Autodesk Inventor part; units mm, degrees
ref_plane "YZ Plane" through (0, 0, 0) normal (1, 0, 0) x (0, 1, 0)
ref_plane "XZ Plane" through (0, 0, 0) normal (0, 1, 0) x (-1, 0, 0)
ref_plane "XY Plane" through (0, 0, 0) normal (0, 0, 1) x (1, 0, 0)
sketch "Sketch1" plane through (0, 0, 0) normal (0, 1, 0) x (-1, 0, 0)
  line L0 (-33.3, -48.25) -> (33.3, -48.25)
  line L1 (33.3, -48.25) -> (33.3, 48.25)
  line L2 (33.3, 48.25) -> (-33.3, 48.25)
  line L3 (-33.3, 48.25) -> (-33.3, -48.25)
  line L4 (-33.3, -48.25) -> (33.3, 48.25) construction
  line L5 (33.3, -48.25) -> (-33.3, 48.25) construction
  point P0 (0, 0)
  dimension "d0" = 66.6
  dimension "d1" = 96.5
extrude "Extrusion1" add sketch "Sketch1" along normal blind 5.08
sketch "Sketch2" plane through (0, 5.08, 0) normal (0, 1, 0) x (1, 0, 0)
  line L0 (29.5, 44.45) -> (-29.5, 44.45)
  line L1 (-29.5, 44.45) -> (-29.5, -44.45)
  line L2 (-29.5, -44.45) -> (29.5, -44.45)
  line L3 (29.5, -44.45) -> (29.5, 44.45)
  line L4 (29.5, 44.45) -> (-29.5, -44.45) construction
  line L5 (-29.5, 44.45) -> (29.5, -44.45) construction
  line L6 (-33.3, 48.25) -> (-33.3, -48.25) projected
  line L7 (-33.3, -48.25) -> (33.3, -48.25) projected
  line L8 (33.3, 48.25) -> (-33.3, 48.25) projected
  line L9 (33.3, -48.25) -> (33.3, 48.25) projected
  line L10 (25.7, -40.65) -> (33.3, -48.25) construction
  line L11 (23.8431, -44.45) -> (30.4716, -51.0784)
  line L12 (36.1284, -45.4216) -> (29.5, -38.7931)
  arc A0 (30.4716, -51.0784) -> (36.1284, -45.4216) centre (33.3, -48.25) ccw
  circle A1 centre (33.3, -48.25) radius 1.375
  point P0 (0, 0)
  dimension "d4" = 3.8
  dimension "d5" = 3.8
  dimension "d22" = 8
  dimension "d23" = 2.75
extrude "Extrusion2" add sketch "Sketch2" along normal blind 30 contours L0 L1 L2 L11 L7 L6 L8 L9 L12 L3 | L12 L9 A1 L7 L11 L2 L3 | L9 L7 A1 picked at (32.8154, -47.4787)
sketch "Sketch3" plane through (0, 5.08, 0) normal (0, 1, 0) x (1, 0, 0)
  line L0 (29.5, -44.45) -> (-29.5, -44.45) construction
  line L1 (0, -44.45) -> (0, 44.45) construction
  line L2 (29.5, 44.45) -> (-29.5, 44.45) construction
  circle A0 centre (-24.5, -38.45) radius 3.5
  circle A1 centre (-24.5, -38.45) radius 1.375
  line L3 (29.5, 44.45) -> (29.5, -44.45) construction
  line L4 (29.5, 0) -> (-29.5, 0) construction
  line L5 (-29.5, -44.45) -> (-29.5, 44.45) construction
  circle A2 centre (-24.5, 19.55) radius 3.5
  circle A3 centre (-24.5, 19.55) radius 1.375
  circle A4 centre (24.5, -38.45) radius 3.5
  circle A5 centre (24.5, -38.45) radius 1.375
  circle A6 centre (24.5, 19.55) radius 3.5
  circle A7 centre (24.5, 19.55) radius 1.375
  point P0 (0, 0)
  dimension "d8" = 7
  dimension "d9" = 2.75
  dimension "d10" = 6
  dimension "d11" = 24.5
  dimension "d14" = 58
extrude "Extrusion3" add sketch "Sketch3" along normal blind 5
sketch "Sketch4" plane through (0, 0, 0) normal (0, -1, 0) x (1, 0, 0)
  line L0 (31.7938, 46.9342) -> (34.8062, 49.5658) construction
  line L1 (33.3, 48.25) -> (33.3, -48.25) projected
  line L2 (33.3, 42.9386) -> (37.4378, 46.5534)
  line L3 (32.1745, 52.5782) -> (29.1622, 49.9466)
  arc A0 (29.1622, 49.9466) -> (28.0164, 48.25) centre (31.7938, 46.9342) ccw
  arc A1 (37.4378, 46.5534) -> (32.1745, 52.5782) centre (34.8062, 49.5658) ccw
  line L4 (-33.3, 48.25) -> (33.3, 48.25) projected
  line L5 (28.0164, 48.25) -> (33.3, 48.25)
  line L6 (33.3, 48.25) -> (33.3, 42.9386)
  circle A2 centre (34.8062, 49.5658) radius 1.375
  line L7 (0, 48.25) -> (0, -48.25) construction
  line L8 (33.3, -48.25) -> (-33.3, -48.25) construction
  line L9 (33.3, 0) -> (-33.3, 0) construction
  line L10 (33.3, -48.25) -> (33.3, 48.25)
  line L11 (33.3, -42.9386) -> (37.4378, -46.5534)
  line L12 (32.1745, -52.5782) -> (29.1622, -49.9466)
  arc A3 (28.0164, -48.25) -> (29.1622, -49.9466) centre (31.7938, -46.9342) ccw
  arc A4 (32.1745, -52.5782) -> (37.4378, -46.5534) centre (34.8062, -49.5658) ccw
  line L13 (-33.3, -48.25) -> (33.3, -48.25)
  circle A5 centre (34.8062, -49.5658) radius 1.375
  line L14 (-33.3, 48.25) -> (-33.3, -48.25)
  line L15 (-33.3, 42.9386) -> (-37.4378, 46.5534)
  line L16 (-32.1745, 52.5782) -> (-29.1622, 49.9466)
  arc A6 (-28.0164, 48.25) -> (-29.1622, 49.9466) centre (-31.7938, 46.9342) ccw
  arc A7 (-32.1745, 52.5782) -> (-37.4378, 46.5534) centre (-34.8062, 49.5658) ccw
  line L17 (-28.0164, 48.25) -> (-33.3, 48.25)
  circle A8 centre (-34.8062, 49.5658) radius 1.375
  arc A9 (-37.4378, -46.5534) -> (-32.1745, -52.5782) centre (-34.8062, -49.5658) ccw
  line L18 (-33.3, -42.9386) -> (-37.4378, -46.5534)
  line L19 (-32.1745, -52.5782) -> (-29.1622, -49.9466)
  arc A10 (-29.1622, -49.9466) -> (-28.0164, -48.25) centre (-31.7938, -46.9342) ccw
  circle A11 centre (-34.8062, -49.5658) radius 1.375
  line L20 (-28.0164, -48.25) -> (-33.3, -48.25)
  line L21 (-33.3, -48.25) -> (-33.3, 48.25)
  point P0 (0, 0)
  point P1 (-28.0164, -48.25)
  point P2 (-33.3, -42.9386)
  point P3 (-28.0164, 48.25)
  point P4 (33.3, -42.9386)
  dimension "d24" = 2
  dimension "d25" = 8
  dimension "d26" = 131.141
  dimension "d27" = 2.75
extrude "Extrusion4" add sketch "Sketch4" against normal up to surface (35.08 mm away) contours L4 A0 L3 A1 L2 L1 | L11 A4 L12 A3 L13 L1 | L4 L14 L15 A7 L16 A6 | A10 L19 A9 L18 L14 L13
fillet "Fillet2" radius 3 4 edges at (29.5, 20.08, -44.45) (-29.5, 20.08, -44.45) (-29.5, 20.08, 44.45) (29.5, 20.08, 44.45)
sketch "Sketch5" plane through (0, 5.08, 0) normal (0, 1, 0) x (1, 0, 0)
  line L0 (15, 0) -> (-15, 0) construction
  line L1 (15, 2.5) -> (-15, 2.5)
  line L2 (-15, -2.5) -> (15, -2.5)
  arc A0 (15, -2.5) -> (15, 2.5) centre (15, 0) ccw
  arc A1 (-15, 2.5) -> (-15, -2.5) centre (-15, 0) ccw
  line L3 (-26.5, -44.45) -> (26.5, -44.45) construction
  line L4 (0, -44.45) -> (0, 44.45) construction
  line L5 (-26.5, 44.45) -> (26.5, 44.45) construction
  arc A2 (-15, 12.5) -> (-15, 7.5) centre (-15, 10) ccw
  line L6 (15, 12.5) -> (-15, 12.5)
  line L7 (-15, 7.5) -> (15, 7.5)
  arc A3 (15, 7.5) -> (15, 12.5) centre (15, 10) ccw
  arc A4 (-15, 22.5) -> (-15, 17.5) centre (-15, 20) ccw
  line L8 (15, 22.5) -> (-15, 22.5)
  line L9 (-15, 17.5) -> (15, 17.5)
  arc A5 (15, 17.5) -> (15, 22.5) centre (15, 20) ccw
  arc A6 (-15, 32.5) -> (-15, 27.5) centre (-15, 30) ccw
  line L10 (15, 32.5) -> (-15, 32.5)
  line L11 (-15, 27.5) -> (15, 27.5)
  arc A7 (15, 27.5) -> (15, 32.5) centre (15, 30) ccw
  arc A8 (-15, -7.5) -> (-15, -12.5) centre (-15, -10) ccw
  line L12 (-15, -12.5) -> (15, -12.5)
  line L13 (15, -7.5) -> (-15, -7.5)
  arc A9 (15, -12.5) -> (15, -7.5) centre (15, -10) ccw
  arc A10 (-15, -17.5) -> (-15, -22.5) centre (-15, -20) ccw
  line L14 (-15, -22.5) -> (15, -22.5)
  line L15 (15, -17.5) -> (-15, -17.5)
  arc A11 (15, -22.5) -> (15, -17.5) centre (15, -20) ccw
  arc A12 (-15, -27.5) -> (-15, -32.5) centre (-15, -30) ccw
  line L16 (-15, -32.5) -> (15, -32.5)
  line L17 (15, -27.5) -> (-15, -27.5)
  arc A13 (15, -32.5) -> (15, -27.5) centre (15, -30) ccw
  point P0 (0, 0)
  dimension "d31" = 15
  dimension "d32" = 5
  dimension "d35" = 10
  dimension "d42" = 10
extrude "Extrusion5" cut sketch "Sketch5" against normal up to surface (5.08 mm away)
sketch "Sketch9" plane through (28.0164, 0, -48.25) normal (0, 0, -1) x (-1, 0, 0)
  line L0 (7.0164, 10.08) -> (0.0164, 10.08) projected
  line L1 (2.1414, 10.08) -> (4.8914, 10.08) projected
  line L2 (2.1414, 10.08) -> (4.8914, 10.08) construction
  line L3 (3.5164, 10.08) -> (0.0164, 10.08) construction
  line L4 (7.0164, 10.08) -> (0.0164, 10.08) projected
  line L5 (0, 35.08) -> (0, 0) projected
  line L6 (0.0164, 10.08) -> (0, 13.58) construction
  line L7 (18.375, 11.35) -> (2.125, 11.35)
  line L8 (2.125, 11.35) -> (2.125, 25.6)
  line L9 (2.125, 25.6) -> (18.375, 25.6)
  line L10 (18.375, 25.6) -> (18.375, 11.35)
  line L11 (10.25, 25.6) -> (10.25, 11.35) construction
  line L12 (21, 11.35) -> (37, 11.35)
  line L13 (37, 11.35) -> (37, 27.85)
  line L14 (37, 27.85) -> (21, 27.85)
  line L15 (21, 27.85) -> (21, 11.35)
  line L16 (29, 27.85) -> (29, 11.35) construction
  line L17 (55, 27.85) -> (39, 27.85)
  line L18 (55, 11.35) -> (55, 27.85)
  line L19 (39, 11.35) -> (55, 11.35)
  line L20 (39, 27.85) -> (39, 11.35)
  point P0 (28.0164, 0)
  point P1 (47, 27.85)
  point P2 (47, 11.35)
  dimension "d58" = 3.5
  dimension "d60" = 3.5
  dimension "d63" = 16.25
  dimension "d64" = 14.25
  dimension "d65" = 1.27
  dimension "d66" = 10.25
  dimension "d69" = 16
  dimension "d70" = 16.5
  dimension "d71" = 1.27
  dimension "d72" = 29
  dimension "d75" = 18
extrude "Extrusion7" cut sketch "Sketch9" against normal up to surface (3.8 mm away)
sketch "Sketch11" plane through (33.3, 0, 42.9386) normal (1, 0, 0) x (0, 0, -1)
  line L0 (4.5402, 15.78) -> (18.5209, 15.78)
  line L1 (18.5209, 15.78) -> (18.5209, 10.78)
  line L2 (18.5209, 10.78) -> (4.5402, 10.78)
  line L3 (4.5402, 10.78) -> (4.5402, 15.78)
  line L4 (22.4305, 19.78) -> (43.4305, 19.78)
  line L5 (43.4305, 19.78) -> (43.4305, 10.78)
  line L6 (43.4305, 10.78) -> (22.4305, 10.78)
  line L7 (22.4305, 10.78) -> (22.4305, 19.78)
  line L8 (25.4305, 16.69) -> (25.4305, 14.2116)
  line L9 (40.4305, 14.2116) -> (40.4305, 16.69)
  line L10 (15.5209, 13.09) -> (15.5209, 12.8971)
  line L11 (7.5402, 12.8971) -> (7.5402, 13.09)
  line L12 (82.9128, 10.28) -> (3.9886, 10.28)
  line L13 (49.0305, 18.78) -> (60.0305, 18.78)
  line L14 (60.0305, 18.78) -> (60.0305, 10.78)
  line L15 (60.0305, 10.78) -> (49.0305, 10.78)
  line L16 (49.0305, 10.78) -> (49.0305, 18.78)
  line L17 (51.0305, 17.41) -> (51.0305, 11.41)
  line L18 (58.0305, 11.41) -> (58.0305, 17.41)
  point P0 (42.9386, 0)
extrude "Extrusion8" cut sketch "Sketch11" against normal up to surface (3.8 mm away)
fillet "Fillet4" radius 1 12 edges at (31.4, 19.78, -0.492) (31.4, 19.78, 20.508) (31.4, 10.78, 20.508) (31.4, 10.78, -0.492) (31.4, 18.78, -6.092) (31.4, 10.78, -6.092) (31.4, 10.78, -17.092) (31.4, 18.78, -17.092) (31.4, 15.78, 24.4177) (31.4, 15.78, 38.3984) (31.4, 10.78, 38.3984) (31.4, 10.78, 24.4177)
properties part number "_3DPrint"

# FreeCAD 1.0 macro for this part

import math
import FreeCAD as App
import Part
import Sketcher

V = App.Vector
Q = App.Units.Quantity


def edges_at(feature, points):
    """Names of the edges that pass closest to the given points."""
    edges = feature.Shape.Edges
    near = lambda p: min(range(len(edges)), key=lambda i: edges[i].distToShape(Part.Vertex(*p))[0])
    return sorted({f"Edge{near(p) + 1}" for p in points})

doc = App.newDocument("Part")
params = doc.addObject("Spreadsheet::Sheet", "Params")
for row, (alias, value) in enumerate([
    ("sketch1_width", "66.6 mm"),
    ("sketch1_height", "96.5 mm"),
    ("pad1_length", "5.08 mm"),
    ("sketch2_width", "59 mm"),
    ("sketch2_height", "96.5 mm"),
    ("pad2_length", "30 mm"),
    ("sketch3_diameter", "7 mm"),
    ("sketch3_diameter2", "2.75 mm"),
    ("pad3_length", "5 mm"),
    ("sketch4_radius", "4 mm"),
    ("sketch4_diameter", "2.75 mm"),
    ("sketch4_length", "4 mm"),
    ("pad4_length", "35.08 mm"),
    ("fillet_radius", "3 mm"),
    ("sketch5_radius", "2.5 mm"),
    ("pocket1_length", "5.08 mm"),
    ("sketch6_width", "16 mm"),
    ("sketch6_height", "16.5 mm"),
    ("sketch6_width2", "16.25 mm"),
    ("sketch6_height2", "14.25 mm"),
    ("pocket2_length", "3.8 mm"),
    ("sketch7_width", "5 mm"),
    ("sketch7_width2", "9 mm"),
    ("sketch7_width3", "8 mm"),
    ("sketch7_height", "21 mm"),
    ("sketch7_height2", "11 mm"),
    ("pocket3_length", "3.8 mm"),
    ("fillet2_radius", "1 mm"),
], start=1):
    params.set(f"A{row}", alias)
    params.set(f"B{row}", "=" + value)
    params.setAlias(f"B{row}", alias)

body = doc.addObject("PartDesign::Body", "Body")

# Sketch on XZ plane
sketch1 = body.newObject("Sketcher::SketchObject", "Sketch")
sketch1.AttachmentSupport = (doc.getObject("XZ_Plane"), [""])
sketch1.MapMode = "FlatFace"
sketch1.addGeometry([
    Part.LineSegment(V(33.3, 48.25, 0), V(33.3, -48.25, 0)),
    Part.LineSegment(V(33.3, -48.25, 0), V(-33.3, -48.25, 0)),
    Part.LineSegment(V(-33.3, -48.25, 0), V(-33.3, 48.25, 0)),
    Part.LineSegment(V(-33.3, 48.25, 0), V(33.3, 48.25, 0)),
], False)
sketch1.addConstraint([
    Sketcher.Constraint("Coincident", 0, 2, 1, 1),
    Sketcher.Constraint("Coincident", 1, 2, 2, 1),
    Sketcher.Constraint("Coincident", 2, 2, 3, 1),
    Sketcher.Constraint("Coincident", 3, 2, 0, 1),
    Sketcher.Constraint("Vertical", 0),
    Sketcher.Constraint("Horizontal", 1),
    Sketcher.Constraint("Vertical", 2),
    Sketcher.Constraint("Horizontal", 3),
    Sketcher.Constraint("Symmetric", 0, 2, 2, 2, -1, 1),
    Sketcher.Constraint("DistanceX", 1, 2, 1, 1, 66.6),
    Sketcher.Constraint("DistanceY", 0, 2, 0, 1, 96.5),
])
sketch1.setExpression("Constraints[9]", "Params.sketch1_width")
sketch1.setExpression("Constraints[10]", "Params.sketch1_height")
pad1 = body.newObject("PartDesign::Pad", "Pad")
pad1.Profile = sketch1
pad1.setExpression("Length", "Params.pad1_length")
pad1.Reversed = True

# Sketch on XZ plane
sketch2 = body.newObject("Sketcher::SketchObject", "Sketch001")
sketch2.AttachmentSupport = (doc.getObject("XZ_Plane"), [""])
sketch2.MapMode = "FlatFace"
sketch2.AttachmentOffset = App.Placement(V(0, 0, -5.08), App.Rotation())
sketch2.addGeometry([
    Part.LineSegment(V(-33.3, 48.25, 0), V(33.3, 48.25, 0)),  # 0
    Part.LineSegment(V(33.3, 48.25, 0), V(33.3, -48.25, 0)),  # 1
    Part.LineSegment(V(33.3, -48.25, 0), V(-33.3, -48.25, 0)),  # 2
    Part.LineSegment(V(-33.3, -48.25, 0), V(-33.3, 48.25, 0)),  # 3
    Part.LineSegment(V(-29.5, -44.45, 0), V(29.5, -44.45, 0)),  # 4
    Part.LineSegment(V(29.5, -44.45, 0), V(29.5, 44.45, 0)),  # 5
    Part.LineSegment(V(29.5, 44.45, 0), V(-29.5, 44.45, 0)),  # 6
    Part.LineSegment(V(-29.5, 44.45, 0), V(-29.5, -44.45, 0)),  # 7
], False)
sketch2.addConstraint([
    Sketcher.Constraint("Coincident", 0, 2, 1, 1),
    Sketcher.Constraint("Coincident", 1, 2, 2, 1),
    Sketcher.Constraint("Coincident", 2, 2, 3, 1),
    Sketcher.Constraint("Coincident", 3, 2, 0, 1),
    Sketcher.Constraint("Coincident", 4, 2, 5, 1),
    Sketcher.Constraint("Coincident", 5, 2, 6, 1),
    Sketcher.Constraint("Coincident", 6, 2, 7, 1),
    Sketcher.Constraint("Coincident", 7, 2, 4, 1),
    Sketcher.Constraint("Horizontal", 0),
    Sketcher.Constraint("Vertical", 1),
    Sketcher.Constraint("Horizontal", 2),
    Sketcher.Constraint("Vertical", 3),
    Sketcher.Constraint("Horizontal", 4),
    Sketcher.Constraint("Vertical", 5),
    Sketcher.Constraint("Horizontal", 6),
    Sketcher.Constraint("Vertical", 7),
    Sketcher.Constraint("Symmetric", 0, 2, 2, 2, -1, 1),
    Sketcher.Constraint("Symmetric", 4, 2, 6, 2, -1, 1),
    Sketcher.Constraint("DistanceX", 4, 2, 1, 2, 3.8),
    Sketcher.Constraint("DistanceY", 1, 2, 4, 2, 3.8),
    Sketcher.Constraint("DistanceX", 4, 1, 4, 2, 59.0),
    Sketcher.Constraint("DistanceY", 1, 2, 1, 1, 96.5),
])
sketch2.setExpression("Constraints[20]", "Params.sketch2_width")
sketch2.setExpression("Constraints[21]", "Params.sketch2_height")
pad2 = body.newObject("PartDesign::Pad", "Pad001")
pad2.Profile = sketch2
pad2.setExpression("Length", "Params.pad2_length")
pad2.Reversed = True

# Sketch on XZ plane
sketch3 = body.newObject("Sketcher::SketchObject", "Sketch002")
sketch3.AttachmentSupport = (doc.getObject("XZ_Plane"), [""])
sketch3.MapMode = "FlatFace"
sketch3.AttachmentOffset = App.Placement(V(0, 0, -5.08), App.Rotation())
sketch3.addGeometry([
    Part.Circle(V(-24.5, 38.45, 0), V(0, 0, 1), 3.5),  # 0
    Part.Circle(V(-24.5, 38.45, 0), V(0, 0, 1), 1.375),  # 1
    Part.Circle(V(-24.5, -19.55, 0), V(0, 0, 1), 3.5),  # 2
    Part.Circle(V(-24.5, -19.55, 0), V(0, 0, 1), 1.375),  # 3
    Part.Circle(V(24.5, 38.45, 0), V(0, 0, 1), 3.5),  # 4
    Part.Circle(V(24.5, 38.45, 0), V(0, 0, 1), 1.375),  # 5
    Part.Circle(V(24.5, -19.55, 0), V(0, 0, 1), 3.5),  # 6
    Part.Circle(V(24.5, -19.55, 0), V(0, 0, 1), 1.375),  # 7
], False)
sketch3.addConstraint([
    Sketcher.Constraint("Coincident", 1, 3, 0, 3),
    Sketcher.Constraint("Coincident", 3, 3, 2, 3),
    Sketcher.Constraint("Coincident", 5, 3, 4, 3),
    Sketcher.Constraint("Coincident", 7, 3, 6, 3),
    Sketcher.Constraint("Equal", 0, 2),
    Sketcher.Constraint("Equal", 1, 3),
    Sketcher.Constraint("Equal", 2, 4),
    Sketcher.Constraint("Equal", 3, 5),
    Sketcher.Constraint("Equal", 4, 6),
    Sketcher.Constraint("Equal", 5, 7),
    Sketcher.Constraint("Symmetric", 0, 3, 4, 3, -2),
    Sketcher.Constraint("Symmetric", 2, 3, 6, 3, -2),
    Sketcher.Constraint("Vertical", 1, 3, 2, 3),
    Sketcher.Constraint("Diameter", 0, 7.0),
    Sketcher.Constraint("Diameter", 1, 2.75),
    Sketcher.Constraint("DistanceY", 2, 3, 0, 3, 58.0),
    Sketcher.Constraint("DistanceX", 0, 3, -1, 1, 24.5),
    Sketcher.Constraint("DistanceY", -1, 1, 0, 3, 38.45),
])
sketch3.setExpression("Constraints[13]", "Params.sketch3_diameter")
sketch3.setExpression("Constraints[14]", "Params.sketch3_diameter2")
pad3 = body.newObject("PartDesign::Pad", "Pad002")
pad3.Profile = sketch3
pad3.setExpression("Length", "Params.pad3_length")
pad3.Reversed = True

# Sketch on XZ plane
sketch4 = body.newObject("Sketcher::SketchObject", "Sketch003")
sketch4.AttachmentSupport = (doc.getObject("XZ_Plane"), [""])
sketch4.MapMode = "FlatFace"
sketch4.addGeometry([
    Part.LineSegment(V(28.0164, 48.25, 0), V(33.3, 48.25, 0)),  # 0
    Part.LineSegment(V(33.3, 48.25, 0), V(33.3, 42.9386, 0)),  # 1
    Part.LineSegment(V(33.3, 42.9386, 0), V(37.4378, 46.5534, 0)),  # 2
    Part.ArcOfCircle(Part.Circle(V(34.8062, 49.5658, 0), V(0, 0, 1), 3.999984), math.radians(-48.859889), math.radians(131.141189)),  # 3
    Part.LineSegment(V(32.1745, 52.5782, 0), V(29.1622, 49.9466, 0)),  # 4
    Part.ArcOfCircle(Part.Circle(V(31.7938, 46.9342, 0), V(0, 0, 1), 3.999984), math.radians(131.140111), math.radians(160.794993)),  # 5
    Part.Circle(V(34.8062, 49.5658, 0), V(0, 0, 1), 1.375),  # 6
    Part.LineSegment(V(37.4378, -46.5534, 0), V(33.3, -42.9386, 0)),  # 7
    Part.LineSegment(V(33.3, -42.9386, 0), V(33.3, -48.25, 0)),  # 8
    Part.LineSegment(V(33.3, -48.25, 0), V(28.0164, -48.25, 0)),  # 9
    Part.ArcOfCircle(Part.Circle(V(31.7938, -46.9342, 0), V(0, 0, 1), 4.00001), math.radians(-160.794993), math.radians(-131.140111)),  # 10
    Part.LineSegment(V(29.1622, -49.9466, 0), V(32.1745, -52.5782, 0)),  # 11
    Part.ArcOfCircle(Part.Circle(V(34.8062, -49.5658, 0), V(0, 0, 1), 4.00005), math.radians(-131.141189), math.radians(48.859889)),  # 12
    Part.Circle(V(34.8062, -49.5658, 0), V(0, 0, 1), 1.375),  # 13
    Part.LineSegment(V(-33.3, 48.25, 0), V(-28.0164, 48.25, 0)),  # 14
    Part.ArcOfCircle(Part.Circle(V(-31.7938, 46.9342, 0), V(0, 0, 1), 4.00001), math.radians(19.205007), math.radians(48.859889)),  # 15
    Part.LineSegment(V(-29.1622, 49.9466, 0), V(-32.1745, 52.5782, 0)),  # 16
    Part.ArcOfCircle(Part.Circle(V(-34.8062, 49.5658, 0), V(0, 0, 1), 4.00005), math.radians(48.858811), math.radians(228.859889)),  # 17
    Part.LineSegment(V(-37.4378, 46.5534, 0), V(-33.3, 42.9386, 0)),  # 18
    Part.LineSegment(V(-33.3, 42.9386, 0), V(-33.3, 48.25, 0)),  # 19
    Part.Circle(V(-34.8062, 49.5658, 0), V(0, 0, 1), 1.375),  # 20
    Part.ArcOfCircle(Part.Circle(V(-31.7938, -46.9342, 0), V(0, 0, 1), 3.999984), math.radians(-48.859889), math.radians(-19.205007)),  # 21
    Part.LineSegment(V(-28.0164, -48.25, 0), V(-33.3, -48.25, 0)),  # 22
    Part.LineSegment(V(-33.3, -48.25, 0), V(-33.3, -42.9386, 0)),  # 23
    Part.LineSegment(V(-33.3, -42.9386, 0), V(-37.4378, -46.5534, 0)),  # 24
    Part.ArcOfCircle(Part.Circle(V(-34.8062, -49.5658, 0), V(0, 0, 1), 3.999984), math.radians(131.140111), math.radians(311.141189)),  # 25
    Part.LineSegment(V(-32.1745, -52.5782, 0), V(-29.1622, -49.9466, 0)),  # 26
    Part.Circle(V(-34.8062, -49.5658, 0), V(0, 0, 1), 1.375),  # 27
], False)
sketch4.addConstraint([
    Sketcher.Constraint("Coincident", 0, 2, 1, 1),
    Sketcher.Constraint("Coincident", 1, 2, 2, 1),
    Sketcher.Constraint("Tangent", 2, 2, 3, 1),
    Sketcher.Constraint("Tangent", 3, 2, 4, 1),
    Sketcher.Constraint("Tangent", 4, 2, 5, 1),
    Sketcher.Constraint("Coincident", 5, 2, 0, 1),
    Sketcher.Constraint("Coincident", 7, 2, 8, 1),
    Sketcher.Constraint("Coincident", 8, 2, 9, 1),
    Sketcher.Constraint("Coincident", 9, 2, 10, 1),
    Sketcher.Constraint("Tangent", 10, 2, 11, 1),
    Sketcher.Constraint("Tangent", 11, 2, 12, 1),
    Sketcher.Constraint("Tangent", 12, 2, 7, 1),
    Sketcher.Constraint("Coincident", 14, 2, 15, 1),
    Sketcher.Constraint("Tangent", 15, 2, 16, 1),
    Sketcher.Constraint("Tangent", 16, 2, 17, 1),
    Sketcher.Constraint("Tangent", 17, 2, 18, 1),
    Sketcher.Constraint("Coincident", 18, 2, 19, 1),
    Sketcher.Constraint("Coincident", 19, 2, 14, 1),
    Sketcher.Constraint("Coincident", 21, 2, 22, 1),
    Sketcher.Constraint("Coincident", 22, 2, 23, 1),
    Sketcher.Constraint("Coincident", 23, 2, 24, 1),
    Sketcher.Constraint("Tangent", 24, 2, 25, 1),
    Sketcher.Constraint("Tangent", 25, 2, 26, 1),
    Sketcher.Constraint("Tangent", 26, 2, 21, 1),
    Sketcher.Constraint("Horizontal", 0),
    Sketcher.Constraint("Vertical", 1),
    Sketcher.Constraint("Vertical", 8),
    Sketcher.Constraint("Horizontal", 9),
    Sketcher.Constraint("Horizontal", 14),
    Sketcher.Constraint("Vertical", 19),
    Sketcher.Constraint("Horizontal", 22),
    Sketcher.Constraint("Vertical", 23),
    Sketcher.Constraint("Coincident", 6, 3, 3, 3),
    Sketcher.Constraint("Coincident", 13, 3, 12, 3),
    Sketcher.Constraint("Coincident", 20, 3, 17, 3),
    Sketcher.Constraint("Coincident", 27, 3, 25, 3),
    Sketcher.Constraint("Equal", 3, 5),
    Sketcher.Constraint("Equal", 5, 10),
    Sketcher.Constraint("Equal", 10, 12),
    Sketcher.Constraint("Equal", 6, 13),
    Sketcher.Constraint("Equal", 12, 15),
    Sketcher.Constraint("Equal", 15, 17),
    Sketcher.Constraint("Equal", 13, 20),
    Sketcher.Constraint("Equal", 17, 21),
    Sketcher.Constraint("Equal", 21, 25),
    Sketcher.Constraint("Equal", 20, 27),
    Sketcher.Constraint("Symmetric", 10, 3, 15, 3, -1, 1),
    Sketcher.Constraint("Symmetric", 12, 3, 17, 3, -1, 1),
    Sketcher.Constraint("Symmetric", 5, 3, 21, 3, -1, 1),
    Sketcher.Constraint("Symmetric", 3, 3, 25, 3, -1, 1),
    Sketcher.Constraint("Symmetric", 7, 2, 18, 2, -1, 1),
    Sketcher.Constraint("Symmetric", 0, 2, 22, 2, -1, 1),
    Sketcher.Constraint("Symmetric", 5, 3, 15, 3, -2),
    Sketcher.Constraint("Symmetric", 3, 3, 17, 3, -2),
    Sketcher.Constraint("Symmetric", 1, 2, 18, 2, -2),
    Sketcher.Constraint("Parallel", 2, 4),
    Sketcher.Constraint("Parallel", 4, 24),
    Sketcher.Constraint("Horizontal", 5, 2, 14, 2),
    Sketcher.Constraint("Horizontal", 9, 2, 21, 2),
    Sketcher.Constraint("Radius", 3, 4.0),
    Sketcher.Constraint("Diameter", 6, 2.75),
    Sketcher.Constraint("Distance", 4, 4.0),
    Sketcher.Constraint("DistanceX", -1, 1, 0, 2, 33.3),
    Sketcher.Constraint("Angle", 2, Q("41.1406 deg")),
    Sketcher.Constraint("DistanceY", 10, 3, 3, 3, 96.5),
    Sketcher.Constraint("DistanceX", 15, 3, 3, 3, 66.6),
    Sketcher.Constraint("DistanceY", -1, 1, 0, 2, 48.25),
])
sketch4.setExpression("Constraints[59]", "Params.sketch4_radius")
sketch4.setExpression("Constraints[60]", "Params.sketch4_diameter")
sketch4.setExpression("Constraints[61]", "Params.sketch4_length")
pad4 = body.newObject("PartDesign::Pad", "Pad003")
pad4.Profile = sketch4
pad4.setExpression("Length", "Params.pad4_length")
pad4.Reversed = True
doc.recompute()

fillet = body.newObject("PartDesign::Fillet", "Fillet")
fillet.Base = (pad4, edges_at(pad4, [
    (29.5, 20.08, -44.45),
    (-29.5, 20.08, -44.45),
    (-29.5, 20.08, 44.45),
    (29.5, 20.08, 44.45),
]))
fillet.setExpression("Radius", "Params.fillet_radius")

# Sketch on XZ plane
sketch5 = body.newObject("Sketcher::SketchObject", "Sketch004")
sketch5.AttachmentSupport = (doc.getObject("XZ_Plane"), [""])
sketch5.MapMode = "FlatFace"
sketch5.AttachmentOffset = App.Placement(V(0, 0, -5.08), App.Rotation())
sketch5.addGeometry([
    Part.ArcOfCircle(Part.Circle(V(15, 0, 0), V(0, 0, 1), 2.5), math.radians(-90), math.radians(90)),  # 0
    Part.LineSegment(V(15, -2.5, 0), V(-15, -2.5, 0)),  # 1
    Part.ArcOfCircle(Part.Circle(V(-15, 0, 0), V(0, 0, 1), 2.5), math.radians(90), math.radians(270)),  # 2
    Part.LineSegment(V(-15, 2.5, 0), V(15, 2.5, 0)),  # 3
    Part.LineSegment(V(15, -12.5, 0), V(-15, -12.5, 0)),  # 4
    Part.ArcOfCircle(Part.Circle(V(-15, -10, 0), V(0, 0, 1), 2.5), math.radians(90), math.radians(270)),  # 5
    Part.LineSegment(V(-15, -7.5, 0), V(15, -7.5, 0)),  # 6
    Part.ArcOfCircle(Part.Circle(V(15, -10, 0), V(0, 0, 1), 2.5), math.radians(-90), math.radians(90)),  # 7
    Part.LineSegment(V(15, -22.5, 0), V(-15, -22.5, 0)),  # 8
    Part.ArcOfCircle(Part.Circle(V(-15, -20, 0), V(0, 0, 1), 2.5), math.radians(90), math.radians(270)),  # 9
    Part.LineSegment(V(-15, -17.5, 0), V(15, -17.5, 0)),  # 10
    Part.ArcOfCircle(Part.Circle(V(15, -20, 0), V(0, 0, 1), 2.5), math.radians(-90), math.radians(90)),  # 11
    Part.LineSegment(V(15, -32.5, 0), V(-15, -32.5, 0)),  # 12
    Part.ArcOfCircle(Part.Circle(V(-15, -30, 0), V(0, 0, 1), 2.5), math.radians(90), math.radians(270)),  # 13
    Part.LineSegment(V(-15, -27.5, 0), V(15, -27.5, 0)),  # 14
    Part.ArcOfCircle(Part.Circle(V(15, -30, 0), V(0, 0, 1), 2.5), math.radians(-90), math.radians(90)),  # 15
    Part.LineSegment(V(15, 7.5, 0), V(-15, 7.5, 0)),  # 16
    Part.ArcOfCircle(Part.Circle(V(-15, 10, 0), V(0, 0, 1), 2.5), math.radians(90), math.radians(270)),  # 17
    Part.LineSegment(V(-15, 12.5, 0), V(15, 12.5, 0)),  # 18
    Part.ArcOfCircle(Part.Circle(V(15, 10, 0), V(0, 0, 1), 2.5), math.radians(-90), math.radians(90)),  # 19
    Part.LineSegment(V(15, 17.5, 0), V(-15, 17.5, 0)),  # 20
    Part.ArcOfCircle(Part.Circle(V(-15, 20, 0), V(0, 0, 1), 2.5), math.radians(90), math.radians(270)),  # 21
    Part.LineSegment(V(-15, 22.5, 0), V(15, 22.5, 0)),  # 22
    Part.ArcOfCircle(Part.Circle(V(15, 20, 0), V(0, 0, 1), 2.5), math.radians(-90), math.radians(90)),  # 23
    Part.LineSegment(V(15, 27.5, 0), V(-15, 27.5, 0)),  # 24
    Part.ArcOfCircle(Part.Circle(V(-15, 30, 0), V(0, 0, 1), 2.5), math.radians(90), math.radians(270)),  # 25
    Part.LineSegment(V(-15, 32.5, 0), V(15, 32.5, 0)),  # 26
    Part.ArcOfCircle(Part.Circle(V(15, 30, 0), V(0, 0, 1), 2.5), math.radians(-90), math.radians(90)),  # 27
], False)
sketch5.addConstraint([
    Sketcher.Constraint("Tangent", 0, 1, 1, 1),
    Sketcher.Constraint("Tangent", 1, 2, 2, 2),
    Sketcher.Constraint("Tangent", 2, 1, 3, 1),
    Sketcher.Constraint("Tangent", 3, 2, 0, 2),
    Sketcher.Constraint("Tangent", 4, 2, 5, 2),
    Sketcher.Constraint("Tangent", 5, 1, 6, 1),
    Sketcher.Constraint("Tangent", 6, 2, 7, 2),
    Sketcher.Constraint("Tangent", 7, 1, 4, 1),
    Sketcher.Constraint("Tangent", 8, 2, 9, 2),
    Sketcher.Constraint("Tangent", 9, 1, 10, 1),
    Sketcher.Constraint("Tangent", 10, 2, 11, 2),
    Sketcher.Constraint("Tangent", 11, 1, 8, 1),
    Sketcher.Constraint("Tangent", 12, 2, 13, 2),
    Sketcher.Constraint("Tangent", 13, 1, 14, 1),
    Sketcher.Constraint("Tangent", 14, 2, 15, 2),
    Sketcher.Constraint("Tangent", 15, 1, 12, 1),
    Sketcher.Constraint("Tangent", 16, 2, 17, 2),
    Sketcher.Constraint("Tangent", 17, 1, 18, 1),
    Sketcher.Constraint("Tangent", 18, 2, 19, 2),
    Sketcher.Constraint("Tangent", 19, 1, 16, 1),
    Sketcher.Constraint("Tangent", 20, 2, 21, 2),
    Sketcher.Constraint("Tangent", 21, 1, 22, 1),
    Sketcher.Constraint("Tangent", 22, 2, 23, 2),
    Sketcher.Constraint("Tangent", 23, 1, 20, 1),
    Sketcher.Constraint("Tangent", 24, 2, 25, 2),
    Sketcher.Constraint("Tangent", 25, 1, 26, 1),
    Sketcher.Constraint("Tangent", 26, 2, 27, 2),
    Sketcher.Constraint("Tangent", 27, 1, 24, 1),
    Sketcher.Constraint("Horizontal", 1),
    Sketcher.Constraint("Horizontal", 3),
    Sketcher.Constraint("Horizontal", 4),
    Sketcher.Constraint("Horizontal", 6),
    Sketcher.Constraint("Horizontal", 8),
    Sketcher.Constraint("Horizontal", 10),
    Sketcher.Constraint("Horizontal", 12),
    Sketcher.Constraint("Horizontal", 14),
    Sketcher.Constraint("Horizontal", 16),
    Sketcher.Constraint("Horizontal", 18),
    Sketcher.Constraint("Horizontal", 20),
    Sketcher.Constraint("Horizontal", 22),
    Sketcher.Constraint("Horizontal", 24),
    Sketcher.Constraint("Horizontal", 26),
    Sketcher.Constraint("Equal", 2, 5),
    Sketcher.Constraint("Equal", 7, 9),
    Sketcher.Constraint("Equal", 11, 13),
    Sketcher.Constraint("Equal", 15, 17),
    Sketcher.Constraint("Equal", 19, 21),
    Sketcher.Constraint("Equal", 23, 25),
    Sketcher.Constraint("Symmetric", 0, 3, 2, 3, -1, 1),
    Sketcher.Constraint("Symmetric", 7, 3, 17, 3, -1, 1),
    Sketcher.Constraint("Symmetric", 11, 3, 21, 3, -1, 1),
    Sketcher.Constraint("Symmetric", 15, 3, 25, 3, -1, 1),
    Sketcher.Constraint("Vertical", 2, 3, 5, 3),
    Sketcher.Constraint("Vertical", 0, 3, 7, 3),
    Sketcher.Constraint("Vertical", 5, 3, 9, 3),
    Sketcher.Constraint("Vertical", 7, 3, 11, 3),
    Sketcher.Constraint("Vertical", 9, 3, 13, 3),
    Sketcher.Constraint("Vertical", 11, 3, 15, 3),
    Sketcher.Constraint("Vertical", 15, 3, 19, 3),
    Sketcher.Constraint("Vertical", 19, 3, 23, 3),
    Sketcher.Constraint("Vertical", 23, 3, 27, 3),
    Sketcher.Constraint("Radius", 0, 2.5),
    Sketcher.Constraint("DistanceX", -1, 1, 0, 3, 15.0),
    Sketcher.Constraint("DistanceY", 5, 3, -1, 1, 10.0),
    Sketcher.Constraint("DistanceY", 9, 3, 5, 3, 10.0),
    Sketcher.Constraint("DistanceY", 13, 3, 9, 3, 10.0),
])
sketch5.setExpression("Constraints[61]", "Params.sketch5_radius")
pocket1 = body.newObject("PartDesign::Pocket", "Pocket")
pocket1.Profile = sketch5
pocket1.setExpression("Length", "Params.pocket1_length")
pocket1.Reversed = True

# Sketch on XY plane
sketch6 = body.newObject("Sketcher::SketchObject", "Sketch005")
sketch6.AttachmentSupport = (doc.getObject("XY_Plane"), [""])
sketch6.MapMode = "FlatFace"
sketch6.AttachmentOffset = App.Placement(V(0, 0, -48.25), App.Rotation())
sketch6.addGeometry([
    Part.LineSegment(V(25.8914, 11.35, 0), V(9.6414, 11.35, 0)),  # 0
    Part.LineSegment(V(9.6414, 11.35, 0), V(9.6414, 25.6, 0)),  # 1
    Part.LineSegment(V(9.6414, 25.6, 0), V(25.8914, 25.6, 0)),  # 2
    Part.LineSegment(V(25.8914, 25.6, 0), V(25.8914, 11.35, 0)),  # 3
    Part.LineSegment(V(7.0164, 27.85, 0), V(7.0164, 11.35, 0)),  # 4
    Part.LineSegment(V(7.0164, 11.35, 0), V(-8.9836, 11.35, 0)),  # 5
    Part.LineSegment(V(-8.9836, 11.35, 0), V(-8.9836, 27.85, 0)),  # 6
    Part.LineSegment(V(-8.9836, 27.85, 0), V(7.0164, 27.85, 0)),  # 7
    Part.LineSegment(V(-26.9836, 11.35, 0), V(-26.9836, 27.85, 0)),  # 8
    Part.LineSegment(V(-26.9836, 27.85, 0), V(-10.9836, 27.85, 0)),  # 9
    Part.LineSegment(V(-10.9836, 27.85, 0), V(-10.9836, 11.35, 0)),  # 10
    Part.LineSegment(V(-10.9836, 11.35, 0), V(-26.9836, 11.35, 0)),  # 11
], False)
sketch6.addConstraint([
    Sketcher.Constraint("Coincident", 0, 2, 1, 1),
    Sketcher.Constraint("Coincident", 1, 2, 2, 1),
    Sketcher.Constraint("Coincident", 2, 2, 3, 1),
    Sketcher.Constraint("Coincident", 3, 2, 0, 1),
    Sketcher.Constraint("Coincident", 4, 2, 5, 1),
    Sketcher.Constraint("Coincident", 5, 2, 6, 1),
    Sketcher.Constraint("Coincident", 6, 2, 7, 1),
    Sketcher.Constraint("Coincident", 7, 2, 4, 1),
    Sketcher.Constraint("Coincident", 8, 2, 9, 1),
    Sketcher.Constraint("Coincident", 9, 2, 10, 1),
    Sketcher.Constraint("Coincident", 10, 2, 11, 1),
    Sketcher.Constraint("Coincident", 11, 2, 8, 1),
    Sketcher.Constraint("Horizontal", 0),
    Sketcher.Constraint("Vertical", 1),
    Sketcher.Constraint("Horizontal", 2),
    Sketcher.Constraint("Vertical", 3),
    Sketcher.Constraint("Vertical", 4),
    Sketcher.Constraint("Horizontal", 5),
    Sketcher.Constraint("Vertical", 6),
    Sketcher.Constraint("Horizontal", 7),
    Sketcher.Constraint("Vertical", 8),
    Sketcher.Constraint("Horizontal", 9),
    Sketcher.Constraint("Vertical", 10),
    Sketcher.Constraint("Horizontal", 11),
    Sketcher.Constraint("Horizontal", 3, 2, 4, 2),
    Sketcher.Constraint("Horizontal", 7, 2, 8, 2),
    Sketcher.Constraint("Horizontal", 5, 2, 10, 2),
    Sketcher.Constraint("Equal", 7, 9),
    Sketcher.Constraint("DistanceX", 5, 2, 5, 1, 16.0),
    Sketcher.Constraint("DistanceY", 4, 2, 4, 1, 16.5),
    Sketcher.Constraint("DistanceX", 8, 2, 6, 2, 18.0),
    Sketcher.Constraint("DistanceX", 0, 2, 0, 1, 16.25),
    Sketcher.Constraint("DistanceY", 1, 1, 1, 2, 14.25),
    Sketcher.Constraint("DistanceY", -1, 1, 1, 2, 25.6),
    Sketcher.Constraint("DistanceX", 4, 2, 0, 2, 2.625),
    Sketcher.Constraint("DistanceX", -1, 1, 0, 2, 9.6414),
])
sketch6.setExpression("Constraints[28]", "Params.sketch6_width")
sketch6.setExpression("Constraints[29]", "Params.sketch6_height")
sketch6.setExpression("Constraints[31]", "Params.sketch6_width2")
sketch6.setExpression("Constraints[32]", "Params.sketch6_height2")
pocket2 = body.newObject("PartDesign::Pocket", "Pocket001")
pocket2.Profile = sketch6
pocket2.setExpression("Length", "Params.pocket2_length")
pocket2.Reversed = True

# Sketch on YZ plane
sketch7 = body.newObject("Sketcher::SketchObject", "Sketch006")
sketch7.AttachmentSupport = (doc.getObject("YZ_Plane"), [""])
sketch7.MapMode = "FlatFace"
sketch7.AttachmentOffset = App.Placement(V(0, 0, 33.3), App.Rotation())
sketch7.addGeometry([
    Part.LineSegment(V(15.78, 24.4177, 0), V(15.78, 38.3984, 0)),  # 0
    Part.LineSegment(V(15.78, 38.3984, 0), V(10.78, 38.3984, 0)),  # 1
    Part.LineSegment(V(10.78, 38.3984, 0), V(10.78, 24.4177, 0)),  # 2
    Part.LineSegment(V(10.78, 24.4177, 0), V(15.78, 24.4177, 0)),  # 3
    Part.LineSegment(V(19.78, -0.4919, 0), V(19.78, 20.5081, 0)),  # 4
    Part.LineSegment(V(19.78, 20.5081, 0), V(10.78, 20.5081, 0)),  # 5
    Part.LineSegment(V(10.78, 20.5081, 0), V(10.78, -0.4919, 0)),  # 6
    Part.LineSegment(V(10.78, -0.4919, 0), V(19.78, -0.4919, 0)),  # 7
    Part.LineSegment(V(18.78, -17.0919, 0), V(18.78, -6.0919, 0)),  # 8
    Part.LineSegment(V(18.78, -6.0919, 0), V(10.78, -6.0919, 0)),  # 9
    Part.LineSegment(V(10.78, -6.0919, 0), V(10.78, -17.0919, 0)),  # 10
    Part.LineSegment(V(10.78, -17.0919, 0), V(18.78, -17.0919, 0)),  # 11
], False)
sketch7.addConstraint([
    Sketcher.Constraint("Coincident", 0, 2, 1, 1),
    Sketcher.Constraint("Coincident", 1, 2, 2, 1),
    Sketcher.Constraint("Coincident", 2, 2, 3, 1),
    Sketcher.Constraint("Coincident", 3, 2, 0, 1),
    Sketcher.Constraint("Coincident", 4, 2, 5, 1),
    Sketcher.Constraint("Coincident", 5, 2, 6, 1),
    Sketcher.Constraint("Coincident", 6, 2, 7, 1),
    Sketcher.Constraint("Coincident", 7, 2, 4, 1),
    Sketcher.Constraint("Coincident", 8, 2, 9, 1),
    Sketcher.Constraint("Coincident", 9, 2, 10, 1),
    Sketcher.Constraint("Coincident", 10, 2, 11, 1),
    Sketcher.Constraint("Coincident", 11, 2, 8, 1),
    Sketcher.Constraint("Vertical", 0),
    Sketcher.Constraint("Horizontal", 1),
    Sketcher.Constraint("Vertical", 2),
    Sketcher.Constraint("Horizontal", 3),
    Sketcher.Constraint("Vertical", 4),
    Sketcher.Constraint("Horizontal", 5),
    Sketcher.Constraint("Vertical", 6),
    Sketcher.Constraint("Horizontal", 7),
    Sketcher.Constraint("Vertical", 8),
    Sketcher.Constraint("Horizontal", 9),
    Sketcher.Constraint("Vertical", 10),
    Sketcher.Constraint("Horizontal", 11),
    Sketcher.Constraint("Vertical", 2, 2, 5, 2),
    Sketcher.Constraint("Vertical", 6, 2, 9, 2),
    Sketcher.Constraint("DistanceX", 1, 2, 1, 1, 5.0),
    Sketcher.Constraint("DistanceX", 5, 2, 5, 1, 9.0),
    Sketcher.Constraint("DistanceX", 9, 2, 9, 1, 8.0),
    Sketcher.Constraint("DistanceY", 4, 1, 4, 2, 21.0),
    Sketcher.Constraint("DistanceY", 8, 1, 8, 2, 11.0),
    Sketcher.Constraint("DistanceY", 8, 2, 7, 2, 5.6),
    Sketcher.Constraint("DistanceX", -1, 1, 0, 2, 15.78),
    Sketcher.Constraint("DistanceY", 0, 1, 0, 2, 13.9807),
    Sketcher.Constraint("DistanceY", -1, 1, 4, 2, 20.508),
    Sketcher.Constraint("DistanceY", -1, 1, 0, 2, 38.3984),
])
sketch7.setExpression("Constraints[26]", "Params.sketch7_width")
sketch7.setExpression("Constraints[27]", "Params.sketch7_width2")
sketch7.setExpression("Constraints[28]", "Params.sketch7_width3")
sketch7.setExpression("Constraints[29]", "Params.sketch7_height")
sketch7.setExpression("Constraints[30]", "Params.sketch7_height2")
pocket3 = body.newObject("PartDesign::Pocket", "Pocket002")
pocket3.Profile = sketch7
pocket3.setExpression("Length", "Params.pocket3_length")
doc.recompute()

fillet2 = body.newObject("PartDesign::Fillet", "Fillet001")
fillet2.Base = (pocket3, edges_at(pocket3, [
    (31.4, 19.78, -0.492),
    (31.4, 19.78, 20.508),
    (31.4, 10.78, 20.508),
    (31.4, 10.78, -0.492),
    (31.4, 18.78, -6.092),
    (31.4, 10.78, -6.092),
    (31.4, 10.78, -17.092),
    (31.4, 18.78, -17.092),
    (31.4, 15.78, 24.418),
    (31.4, 15.78, 38.398),
    (31.4, 10.78, 38.398),
    (31.4, 10.78, 24.418),
]))
fillet2.setExpression("Radius", "Params.fillet2_radius")

doc.recompute()
